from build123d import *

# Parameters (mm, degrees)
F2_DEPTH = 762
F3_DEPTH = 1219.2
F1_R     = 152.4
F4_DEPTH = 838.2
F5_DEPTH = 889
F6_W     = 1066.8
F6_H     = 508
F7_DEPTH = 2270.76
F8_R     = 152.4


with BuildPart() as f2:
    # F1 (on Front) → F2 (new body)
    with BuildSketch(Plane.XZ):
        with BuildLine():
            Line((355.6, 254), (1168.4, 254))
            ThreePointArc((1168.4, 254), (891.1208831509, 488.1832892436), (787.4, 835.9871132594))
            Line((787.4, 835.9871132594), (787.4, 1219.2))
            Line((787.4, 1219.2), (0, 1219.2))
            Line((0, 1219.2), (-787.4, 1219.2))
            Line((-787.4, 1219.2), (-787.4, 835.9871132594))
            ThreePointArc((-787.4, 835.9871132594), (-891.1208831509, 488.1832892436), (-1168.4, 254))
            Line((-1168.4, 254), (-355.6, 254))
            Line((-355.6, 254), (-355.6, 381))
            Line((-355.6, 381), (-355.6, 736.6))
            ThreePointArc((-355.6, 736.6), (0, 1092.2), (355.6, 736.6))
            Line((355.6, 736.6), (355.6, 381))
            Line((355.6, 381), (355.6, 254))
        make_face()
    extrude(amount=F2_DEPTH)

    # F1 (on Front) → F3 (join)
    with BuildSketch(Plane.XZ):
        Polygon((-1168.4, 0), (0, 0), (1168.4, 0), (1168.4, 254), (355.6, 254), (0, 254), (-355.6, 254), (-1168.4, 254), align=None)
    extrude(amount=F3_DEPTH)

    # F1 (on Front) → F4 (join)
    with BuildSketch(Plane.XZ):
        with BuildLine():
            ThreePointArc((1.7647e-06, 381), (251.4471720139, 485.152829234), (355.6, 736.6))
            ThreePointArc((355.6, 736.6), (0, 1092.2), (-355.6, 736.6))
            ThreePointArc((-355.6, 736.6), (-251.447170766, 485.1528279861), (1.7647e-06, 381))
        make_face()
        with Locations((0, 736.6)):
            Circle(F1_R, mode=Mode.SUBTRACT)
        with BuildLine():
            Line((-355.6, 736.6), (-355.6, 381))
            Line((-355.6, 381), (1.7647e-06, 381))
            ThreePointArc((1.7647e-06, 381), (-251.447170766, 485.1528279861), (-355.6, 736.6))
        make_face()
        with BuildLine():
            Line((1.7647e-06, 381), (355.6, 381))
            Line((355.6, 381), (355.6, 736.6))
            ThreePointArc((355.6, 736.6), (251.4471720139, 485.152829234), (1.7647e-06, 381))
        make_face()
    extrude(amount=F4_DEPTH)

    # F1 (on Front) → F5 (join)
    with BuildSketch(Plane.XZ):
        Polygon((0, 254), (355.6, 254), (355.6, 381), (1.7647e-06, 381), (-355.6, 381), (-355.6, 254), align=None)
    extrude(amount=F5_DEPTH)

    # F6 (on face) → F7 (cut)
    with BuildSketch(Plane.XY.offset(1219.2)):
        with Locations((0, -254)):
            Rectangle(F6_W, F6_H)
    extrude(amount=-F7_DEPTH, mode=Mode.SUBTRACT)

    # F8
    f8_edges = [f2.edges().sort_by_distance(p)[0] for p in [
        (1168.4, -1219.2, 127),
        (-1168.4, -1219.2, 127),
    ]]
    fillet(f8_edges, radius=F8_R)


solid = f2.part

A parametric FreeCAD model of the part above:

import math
import FreeCAD as App
import Part
import Sketcher
from FreeCAD import Vector
Q = App.Units.Quantity


def edges_at(feature, points):
    """Names of the edges that pass closest to the given points."""
    edges = feature.Shape.Edges
    near = lambda p: min(range(len(edges)), key=lambda i: edges[i].distToShape(Part.Vertex(*p))[0])
    return sorted({f"Edge{near(p) + 1}" for p in points})

doc = App.newDocument("Part")
body = doc.addObject("PartDesign::Body", "Body")

# Sketch on XZ plane
sketch1 = body.newObject("Sketcher::SketchObject", "Sketch")
sketch1.AttachmentSupport = (doc.getObject("XZ_Plane"), [""])
sketch1.MapMode = "FlatFace"
sketch1.addGeometry(Part.LineSegment(Vector(356, 254, 0), Vector(1168, 254, 0)), False)
sketch1.addGeometry(Part.ArcOfCircle(Part.Circle(Vector(1422, 836, 0), Vector(0, 0, 1), 635), math.radians(180), math.radians(246)), False)
sketch1.addGeometry(Part.LineSegment(Vector(787, 836, 0), Vector(787, 1219, 0)), False)
sketch1.addGeometry(Part.LineSegment(Vector(787, 1219, 0), Vector(-787, 1219, 0)), False)
sketch1.addGeometry(Part.LineSegment(Vector(-787, 1219, 0), Vector(-787, 836, 0)), False)
sketch1.addGeometry(Part.ArcOfCircle(Part.Circle(Vector(-1422, 836, 0), Vector(0, 0, 1), 635), math.radians(-66), math.radians(0)), False)
sketch1.addGeometry(Part.LineSegment(Vector(-1168, 254, 0), Vector(-356, 254, 0)), False)
sketch1.addGeometry(Part.LineSegment(Vector(-356, 254, 0), Vector(-356, 737, 0)), False)
sketch1.addGeometry(Part.ArcOfCircle(Part.Circle(Vector(0, 737, 0), Vector(0, 0, 1), 356), math.radians(0), math.radians(180)), False)
sketch1.addGeometry(Part.LineSegment(Vector(356, 737, 0), Vector(356, 254, 0)), False)
sketch1.addConstraint(Sketcher.Constraint("Coincident", 0, 2, 1, 2))
sketch1.addConstraint(Sketcher.Constraint("Tangent", 1, 1, 2, 1))
sketch1.addConstraint(Sketcher.Constraint("Coincident", 2, 2, 3, 1))
sketch1.addConstraint(Sketcher.Constraint("Coincident", 3, 2, 4, 1))
sketch1.addConstraint(Sketcher.Constraint("Tangent", 4, 2, 5, 2))
sketch1.addConstraint(Sketcher.Constraint("Coincident", 5, 1, 6, 1))
sketch1.addConstraint(Sketcher.Constraint("Coincident", 6, 2, 7, 1))
sketch1.addConstraint(Sketcher.Constraint("Tangent", 7, 2, 8, 2))
sketch1.addConstraint(Sketcher.Constraint("Tangent", 8, 1, 9, 1))
sketch1.addConstraint(Sketcher.Constraint("Coincident", 9, 2, 0, 1))
sketch1.addConstraint(Sketcher.Constraint("Horizontal", 0))
sketch1.addConstraint(Sketcher.Constraint("Vertical", 2))
sketch1.addConstraint(Sketcher.Constraint("Horizontal", 3))
sketch1.addConstraint(Sketcher.Constraint("Vertical", 4))
sketch1.addConstraint(Sketcher.Constraint("Horizontal", 6))
sketch1.addConstraint(Sketcher.Constraint("Vertical", 7))
sketch1.addConstraint(Sketcher.Constraint("Vertical", 9))
sketch1.addConstraint(Sketcher.Constraint("Equal", 1, 5))
sketch1.addConstraint(Sketcher.Constraint("Symmetric", 1, 3, 5, 3, -2))
sketch1.addConstraint(Sketcher.Constraint("Symmetric", 6, 2, 9, 2, -2))
sketch1.addConstraint(Sketcher.Constraint("Radius", 1, Q("25 in")))
sketch1.addConstraint(Sketcher.Constraint("Radius", 8, Q("14 in")))
sketch1.addConstraint(Sketcher.Constraint("DistanceX", 0, 1, 0, 2, Q("32 in")))
sketch1.addConstraint(Sketcher.Constraint("DistanceX", 3, 2, 3, 1, Q("62 in")))
sketch1.addConstraint(Sketcher.Constraint("DistanceY", 7, 1, 7, 2, Q("19 in")))
sketch1.addConstraint(Sketcher.Constraint("DistanceY", -1, 1, 8, 3, Q("29 in")))
sketch1.addConstraint(Sketcher.Constraint("DistanceY", -1, 1, 2, 2, Q("48 in")))
pad1 = body.newObject("PartDesign::Pad", "Pad")
pad1.Profile = sketch1
pad1.Length = Q("30 in")

# Sketch on XZ plane
sketch2 = body.newObject("Sketcher::SketchObject", "Sketch001")
sketch2.AttachmentSupport = (doc.getObject("XZ_Plane"), [""])
sketch2.MapMode = "FlatFace"
sketch2.addGeometry(Part.LineSegment(Vector(-1168, 0, 0), Vector(1168, 0, 0)), False)
sketch2.addGeometry(Part.LineSegment(Vector(1168, 0, 0), Vector(1168, 254, 0)), False)
sketch2.addGeometry(Part.LineSegment(Vector(1168, 254, 0), Vector(-1168, 254, 0)), False)
sketch2.addGeometry(Part.LineSegment(Vector(-1168, 254, 0), Vector(-1168, 0, 0)), False)
sketch2.addConstraint(Sketcher.Constraint("Coincident", 0, 2, 1, 1))
sketch2.addConstraint(Sketcher.Constraint("Coincident", 1, 2, 2, 1))
sketch2.addConstraint(Sketcher.Constraint("Coincident", 2, 2, 3, 1))
sketch2.addConstraint(Sketcher.Constraint("Coincident", 3, 2, 0, 1))
sketch2.addConstraint(Sketcher.Constraint("Horizontal", 0))
sketch2.addConstraint(Sketcher.Constraint("Vertical", 1))
sketch2.addConstraint(Sketcher.Constraint("Horizontal", 2))
sketch2.addConstraint(Sketcher.Constraint("Vertical", 3))
sketch2.addConstraint(Sketcher.Constraint("Symmetric", 0, 2, 3, 2, -1, 1))
sketch2.addConstraint(Sketcher.Constraint("DistanceX", 0, 1, 0, 2, Q("92 in")))
sketch2.addConstraint(Sketcher.Constraint("DistanceY", 1, 1, 1, 2, Q("10 in")))
pad2 = body.newObject("PartDesign::Pad", "Pad001")
pad2.Profile = sketch2
pad2.Length = Q("48 in")

# Sketch on XZ plane
sketch3 = body.newObject("Sketcher::SketchObject", "Sketch002")
sketch3.AttachmentSupport = (doc.getObject("XZ_Plane"), [""])
sketch3.MapMode = "FlatFace"
sketch3.addGeometry(Part.ArcOfCircle(Part.Circle(Vector(0, 737, 0), Vector(0, 0, 1), 356), math.radians(0), math.radians(180)), False)
sketch3.addGeometry(Part.LineSegment(Vector(-356, 737, 0), Vector(-356, 381, 0)), False)
sketch3.addGeometry(Part.LineSegment(Vector(-356, 381, 0), Vector(356, 381, 0)), False)
sketch3.addGeometry(Part.LineSegment(Vector(356, 381, 0), Vector(356, 737, 0)), False)
sketch3.addGeometry(Part.Circle(Vector(0, 737, 0), Vector(0, 0, 1), 152), False)
sketch3.addConstraint(Sketcher.Constraint("Tangent", 0, 2, 1, 1))
sketch3.addConstraint(Sketcher.Constraint("Coincident", 1, 2, 2, 1))
sketch3.addConstraint(Sketcher.Constraint("Coincident", 2, 2, 3, 1))
sketch3.addConstraint(Sketcher.Constraint("Tangent", 3, 2, 0, 1))
sketch3.addConstraint(Sketcher.Constraint("Vertical", 1))
sketch3.addConstraint(Sketcher.Constraint("Horizontal", 2))
sketch3.addConstraint(Sketcher.Constraint("Vertical", 3))
sketch3.addConstraint(Sketcher.Constraint("Coincident", 4, 3, 0, 3))
sketch3.addConstraint(Sketcher.Constraint("PointOnObject", 0, 3, -2))
sketch3.addConstraint(Sketcher.Constraint("Diameter", 4, Q("12 in")))
sketch3.addConstraint(Sketcher.Constraint("Radius", 0, Q("14 in")))
sketch3.addConstraint(Sketcher.Constraint("DistanceY", 1, 2, 1, 1, Q("14 in")))
sketch3.addConstraint(Sketcher.Constraint("DistanceY", -1, 1, 0, 3, Q("29 in")))
pad3 = body.newObject("PartDesign::Pad", "Pad002")
pad3.Profile = sketch3
pad3.Length = Q("33 in")

# Sketch on XZ plane
sketch4 = body.newObject("Sketcher::SketchObject", "Sketch003")
sketch4.AttachmentSupport = (doc.getObject("XZ_Plane"), [""])
sketch4.MapMode = "FlatFace"
sketch4.addGeometry(Part.LineSegment(Vector(356, 254, 0), Vector(356, 381, 0)), False)
sketch4.addGeometry(Part.LineSegment(Vector(356, 381, 0), Vector(-356, 381, 0)), False)
sketch4.addGeometry(Part.LineSegment(Vector(-356, 381, 0), Vector(-356, 254, 0)), False)
sketch4.addGeometry(Part.LineSegment(Vector(-356, 254, 0), Vector(356, 254, 0)), False)
sketch4.addConstraint(Sketcher.Constraint("Coincident", 0, 2, 1, 1))
sketch4.addConstraint(Sketcher.Constraint("Coincident", 1, 2, 2, 1))
sketch4.addConstraint(Sketcher.Constraint("Coincident", 2, 2, 3, 1))
sketch4.addConstraint(Sketcher.Constraint("Coincident", 3, 2, 0, 1))
sketch4.addConstraint(Sketcher.Constraint("Vertical", 0))
sketch4.addConstraint(Sketcher.Constraint("Horizontal", 1))
sketch4.addConstraint(Sketcher.Constraint("Vertical", 2))
sketch4.addConstraint(Sketcher.Constraint("Horizontal", 3))
sketch4.addConstraint(Sketcher.Constraint("DistanceX", 1, 2, 1, 1, Q("28 in")))
sketch4.addConstraint(Sketcher.Constraint("DistanceY", 0, 1, 0, 2, Q("5 in")))
sketch4.addConstraint(Sketcher.Constraint("DistanceX", -1, 1, 0, 2, Q("14 in")))
sketch4.addConstraint(Sketcher.Constraint("DistanceY", -1, 1, 0, 2, Q("15 in")))
pad4 = body.newObject("PartDesign::Pad", "Pad003")
pad4.Profile = sketch4
pad4.Length = Q("35 in")

# Sketch on XY plane
sketch5 = body.newObject("Sketcher::SketchObject", "Sketch004")
sketch5.AttachmentSupport = (doc.getObject("XY_Plane"), [""])
sketch5.MapMode = "FlatFace"
sketch5.AttachmentOffset = App.Placement(Vector(0, 0, 48 * 25.4), App.Rotation())
sketch5.addGeometry(Part.LineSegment(Vector(-533, 0, 0), Vector(-533, -508, 0)), False)
sketch5.addGeometry(Part.LineSegment(Vector(-533, -508, 0), Vector(533, -508, 0)), False)
sketch5.addGeometry(Part.LineSegment(Vector(533, -508, 0), Vector(533, 0, 0)), False)
sketch5.addGeometry(Part.LineSegment(Vector(533, 0, 0), Vector(-533, 0, 0)), False)
sketch5.addConstraint(Sketcher.Constraint("Coincident", 0, 2, 1, 1))
sketch5.addConstraint(Sketcher.Constraint("Coincident", 1, 2, 2, 1))
sketch5.addConstraint(Sketcher.Constraint("Coincident", 2, 2, 3, 1))
sketch5.addConstraint(Sketcher.Constraint("Coincident", 3, 2, 0, 1))
sketch5.addConstraint(Sketcher.Constraint("Vertical", 0))
sketch5.addConstraint(Sketcher.Constraint("Horizontal", 1))
sketch5.addConstraint(Sketcher.Constraint("Vertical", 2))
sketch5.addConstraint(Sketcher.Constraint("Horizontal", 3))
sketch5.addConstraint(Sketcher.Constraint("Symmetric", 2, 2, 3, 2, -1, 1))
sketch5.addConstraint(Sketcher.Constraint("DistanceX", 1, 1, 1, 2, Q("42 in")))
sketch5.addConstraint(Sketcher.Constraint("DistanceY", 0, 2, 0, 1, Q("20 in")))
pocket1 = body.newObject("PartDesign::Pocket", "Pocket")
pocket1.Profile = sketch5
pocket1.Length = Q("89.4 in")
doc.recompute()

fillet = body.newObject("PartDesign::Fillet", "Fillet")
fillet.Base = (pocket1, edges_at(pocket1, [(1168.4, -1219.2, 127), (-1168.4, -1219.2, 127)]))
fillet.Radius = Q("6 in")

doc.recompute()
